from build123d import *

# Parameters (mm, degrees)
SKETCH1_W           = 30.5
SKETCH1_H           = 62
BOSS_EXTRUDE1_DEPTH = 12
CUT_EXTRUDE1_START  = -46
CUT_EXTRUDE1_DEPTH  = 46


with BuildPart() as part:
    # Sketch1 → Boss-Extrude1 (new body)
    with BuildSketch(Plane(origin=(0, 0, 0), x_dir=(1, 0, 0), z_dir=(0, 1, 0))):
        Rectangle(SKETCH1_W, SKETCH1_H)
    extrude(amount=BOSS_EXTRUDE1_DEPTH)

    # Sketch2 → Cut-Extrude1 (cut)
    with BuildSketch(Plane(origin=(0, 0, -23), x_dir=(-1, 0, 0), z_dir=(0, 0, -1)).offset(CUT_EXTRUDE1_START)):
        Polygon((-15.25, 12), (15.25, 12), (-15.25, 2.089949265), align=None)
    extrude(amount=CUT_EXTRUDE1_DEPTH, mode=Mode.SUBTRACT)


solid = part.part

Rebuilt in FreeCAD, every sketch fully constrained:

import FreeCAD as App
import Part
import Sketcher
Q = App.Units.Quantity

doc = App.newDocument("Part")
body = doc.addObject("PartDesign::Body", "Body")

sketch1 = doc.addObject("Sketcher::SketchObject", "Sketch")
body.addObject(sketch1)
sketch1.AttachmentSupport = (doc.XZ_Plane, [""])
sketch1.MapMode = "FlatFace"
sketch1.addGeometry([
    Part.LineSegment(App.Vector(-15.25, -31, 0), App.Vector(-15.25, 31, 0)),
    Part.LineSegment(App.Vector(-15.25, 31, 0), App.Vector(15.25, 31, 0)),
    Part.LineSegment(App.Vector(15.25, 31, 0), App.Vector(15.25, -31, 0)),
    Part.LineSegment(App.Vector(15.25, -31, 0), App.Vector(-15.25, -31, 0)),
], False)
sketch1.addConstraint([
    Sketcher.Constraint("Coincident", 0, 2, 1, 1),
    Sketcher.Constraint("Coincident", 1, 2, 2, 1),
    Sketcher.Constraint("Coincident", 2, 2, 3, 1),
    Sketcher.Constraint("Coincident", 3, 2, 0, 1),
    Sketcher.Constraint("Vertical", 0),
    Sketcher.Constraint("Horizontal", 1),
    Sketcher.Constraint("Vertical", 2),
    Sketcher.Constraint("Horizontal", 3),
    Sketcher.Constraint("Symmetric", 0, 2, 2, 2, -1, 1),
    Sketcher.Constraint("DistanceY", 0, 1, 0, 2, 62.0),
    Sketcher.Constraint("DistanceX", 1, 1, 1, 2, 30.5),
])
pad1 = doc.addObject("PartDesign::Pad", "Pad")
body.addObject(pad1)
pad1.Profile = sketch1
pad1.Length = 12
pad1.Reversed = True

sketch2 = doc.addObject("Sketcher::SketchObject", "Sketch001")
body.addObject(sketch2)
sketch2.AttachmentSupport = (doc.XY_Plane, [""])
sketch2.MapMode = "FlatFace"
sketch2.AttachmentOffset = App.Placement(App.Vector(0, 0, 23), App.Rotation())
sketch2.addGeometry([
    Part.LineSegment(App.Vector(-15.25, 12, 0), App.Vector(15.25, 12, 0)),
    Part.LineSegment(App.Vector(15.25, 12, 0), App.Vector(15.25, 2.089949, 0)),
    Part.LineSegment(App.Vector(15.25, 2.089949, 0), App.Vector(-15.25, 12, 0)),
], False)
sketch2.addConstraint([
    Sketcher.Constraint("Coincident", 0, 2, 1, 1),
    Sketcher.Constraint("Coincident", 1, 2, 2, 1),
    Sketcher.Constraint("Coincident", 2, 2, 0, 1),
    Sketcher.Constraint("Horizontal", 0),
    Sketcher.Constraint("Vertical", 1),
    Sketcher.Constraint("Angle", 2, Q("162 deg")),
    Sketcher.Constraint("DistanceX", 0, 1, 0, 2, 30.5),
    Sketcher.Constraint("DistanceY", -1, 1, 0, 2, 12.0),
    Sketcher.Constraint("DistanceX", -1, 1, 0, 2, 15.25),
])
pocket1 = doc.addObject("PartDesign::Pocket", "Pocket")
body.addObject(pocket1)
pocket1.Profile = sketch2
pocket1.Length = 46

doc.recompute()
